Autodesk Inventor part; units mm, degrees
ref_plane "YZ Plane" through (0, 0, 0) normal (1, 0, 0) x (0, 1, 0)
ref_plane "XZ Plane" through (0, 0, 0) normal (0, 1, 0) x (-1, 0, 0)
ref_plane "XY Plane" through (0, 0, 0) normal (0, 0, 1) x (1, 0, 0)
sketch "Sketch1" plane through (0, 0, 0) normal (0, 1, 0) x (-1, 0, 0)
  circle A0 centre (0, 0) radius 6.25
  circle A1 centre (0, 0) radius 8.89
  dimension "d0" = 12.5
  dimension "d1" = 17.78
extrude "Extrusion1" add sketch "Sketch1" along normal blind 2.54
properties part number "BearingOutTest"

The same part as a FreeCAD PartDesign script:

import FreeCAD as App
import Part
import Sketcher

V = App.Vector
Q = App.Units.Quantity

doc = App.newDocument("Part")
params = doc.addObject("Spreadsheet::Sheet", "Params")
for row, (alias, value) in enumerate([
    ("sketch1_diameter", "0.7 in"),
    ("pad1_length", "0.1 in"),
], start=1):
    params.set(f"A{row}", alias)
    params.set(f"B{row}", "=" + value)
    params.setAlias(f"B{row}", alias)

body = doc.addObject("PartDesign::Body", "Body")

sketch1 = doc.addObject("Sketcher::SketchObject", "Sketch")
body.addObject(sketch1)
sketch1.AttachmentSupport = (doc.XZ_Plane, [""])
sketch1.MapMode = "FlatFace"
sketch1.addGeometry(Part.Circle(V(0, 0, 0), V(0, 0, 1), 9), False)
sketch1.addGeometry(Part.Circle(V(0, 0, 0), V(0, 0, 1), 6), False)
sketch1.addConstraint(Sketcher.Constraint("Coincident", 0, 3, -1, 1))
sketch1.addConstraint(Sketcher.Constraint("Coincident", 1, 3, -1, 1))
sketch1.addConstraint(Sketcher.Constraint("Diameter", 0, Q("0.7 in")))
sketch1.addConstraint(Sketcher.Constraint("Diameter", 1, Q("12.5 mm")))
sketch1.setExpression("Constraints[2]", "Params.sketch1_diameter")
pad1 = doc.addObject("PartDesign::Pad", "Pad")
body.addObject(pad1)
pad1.Profile = sketch1
pad1.setExpression("Length", "Params.pad1_length")
pad1.Reversed = True

doc.recompute()
